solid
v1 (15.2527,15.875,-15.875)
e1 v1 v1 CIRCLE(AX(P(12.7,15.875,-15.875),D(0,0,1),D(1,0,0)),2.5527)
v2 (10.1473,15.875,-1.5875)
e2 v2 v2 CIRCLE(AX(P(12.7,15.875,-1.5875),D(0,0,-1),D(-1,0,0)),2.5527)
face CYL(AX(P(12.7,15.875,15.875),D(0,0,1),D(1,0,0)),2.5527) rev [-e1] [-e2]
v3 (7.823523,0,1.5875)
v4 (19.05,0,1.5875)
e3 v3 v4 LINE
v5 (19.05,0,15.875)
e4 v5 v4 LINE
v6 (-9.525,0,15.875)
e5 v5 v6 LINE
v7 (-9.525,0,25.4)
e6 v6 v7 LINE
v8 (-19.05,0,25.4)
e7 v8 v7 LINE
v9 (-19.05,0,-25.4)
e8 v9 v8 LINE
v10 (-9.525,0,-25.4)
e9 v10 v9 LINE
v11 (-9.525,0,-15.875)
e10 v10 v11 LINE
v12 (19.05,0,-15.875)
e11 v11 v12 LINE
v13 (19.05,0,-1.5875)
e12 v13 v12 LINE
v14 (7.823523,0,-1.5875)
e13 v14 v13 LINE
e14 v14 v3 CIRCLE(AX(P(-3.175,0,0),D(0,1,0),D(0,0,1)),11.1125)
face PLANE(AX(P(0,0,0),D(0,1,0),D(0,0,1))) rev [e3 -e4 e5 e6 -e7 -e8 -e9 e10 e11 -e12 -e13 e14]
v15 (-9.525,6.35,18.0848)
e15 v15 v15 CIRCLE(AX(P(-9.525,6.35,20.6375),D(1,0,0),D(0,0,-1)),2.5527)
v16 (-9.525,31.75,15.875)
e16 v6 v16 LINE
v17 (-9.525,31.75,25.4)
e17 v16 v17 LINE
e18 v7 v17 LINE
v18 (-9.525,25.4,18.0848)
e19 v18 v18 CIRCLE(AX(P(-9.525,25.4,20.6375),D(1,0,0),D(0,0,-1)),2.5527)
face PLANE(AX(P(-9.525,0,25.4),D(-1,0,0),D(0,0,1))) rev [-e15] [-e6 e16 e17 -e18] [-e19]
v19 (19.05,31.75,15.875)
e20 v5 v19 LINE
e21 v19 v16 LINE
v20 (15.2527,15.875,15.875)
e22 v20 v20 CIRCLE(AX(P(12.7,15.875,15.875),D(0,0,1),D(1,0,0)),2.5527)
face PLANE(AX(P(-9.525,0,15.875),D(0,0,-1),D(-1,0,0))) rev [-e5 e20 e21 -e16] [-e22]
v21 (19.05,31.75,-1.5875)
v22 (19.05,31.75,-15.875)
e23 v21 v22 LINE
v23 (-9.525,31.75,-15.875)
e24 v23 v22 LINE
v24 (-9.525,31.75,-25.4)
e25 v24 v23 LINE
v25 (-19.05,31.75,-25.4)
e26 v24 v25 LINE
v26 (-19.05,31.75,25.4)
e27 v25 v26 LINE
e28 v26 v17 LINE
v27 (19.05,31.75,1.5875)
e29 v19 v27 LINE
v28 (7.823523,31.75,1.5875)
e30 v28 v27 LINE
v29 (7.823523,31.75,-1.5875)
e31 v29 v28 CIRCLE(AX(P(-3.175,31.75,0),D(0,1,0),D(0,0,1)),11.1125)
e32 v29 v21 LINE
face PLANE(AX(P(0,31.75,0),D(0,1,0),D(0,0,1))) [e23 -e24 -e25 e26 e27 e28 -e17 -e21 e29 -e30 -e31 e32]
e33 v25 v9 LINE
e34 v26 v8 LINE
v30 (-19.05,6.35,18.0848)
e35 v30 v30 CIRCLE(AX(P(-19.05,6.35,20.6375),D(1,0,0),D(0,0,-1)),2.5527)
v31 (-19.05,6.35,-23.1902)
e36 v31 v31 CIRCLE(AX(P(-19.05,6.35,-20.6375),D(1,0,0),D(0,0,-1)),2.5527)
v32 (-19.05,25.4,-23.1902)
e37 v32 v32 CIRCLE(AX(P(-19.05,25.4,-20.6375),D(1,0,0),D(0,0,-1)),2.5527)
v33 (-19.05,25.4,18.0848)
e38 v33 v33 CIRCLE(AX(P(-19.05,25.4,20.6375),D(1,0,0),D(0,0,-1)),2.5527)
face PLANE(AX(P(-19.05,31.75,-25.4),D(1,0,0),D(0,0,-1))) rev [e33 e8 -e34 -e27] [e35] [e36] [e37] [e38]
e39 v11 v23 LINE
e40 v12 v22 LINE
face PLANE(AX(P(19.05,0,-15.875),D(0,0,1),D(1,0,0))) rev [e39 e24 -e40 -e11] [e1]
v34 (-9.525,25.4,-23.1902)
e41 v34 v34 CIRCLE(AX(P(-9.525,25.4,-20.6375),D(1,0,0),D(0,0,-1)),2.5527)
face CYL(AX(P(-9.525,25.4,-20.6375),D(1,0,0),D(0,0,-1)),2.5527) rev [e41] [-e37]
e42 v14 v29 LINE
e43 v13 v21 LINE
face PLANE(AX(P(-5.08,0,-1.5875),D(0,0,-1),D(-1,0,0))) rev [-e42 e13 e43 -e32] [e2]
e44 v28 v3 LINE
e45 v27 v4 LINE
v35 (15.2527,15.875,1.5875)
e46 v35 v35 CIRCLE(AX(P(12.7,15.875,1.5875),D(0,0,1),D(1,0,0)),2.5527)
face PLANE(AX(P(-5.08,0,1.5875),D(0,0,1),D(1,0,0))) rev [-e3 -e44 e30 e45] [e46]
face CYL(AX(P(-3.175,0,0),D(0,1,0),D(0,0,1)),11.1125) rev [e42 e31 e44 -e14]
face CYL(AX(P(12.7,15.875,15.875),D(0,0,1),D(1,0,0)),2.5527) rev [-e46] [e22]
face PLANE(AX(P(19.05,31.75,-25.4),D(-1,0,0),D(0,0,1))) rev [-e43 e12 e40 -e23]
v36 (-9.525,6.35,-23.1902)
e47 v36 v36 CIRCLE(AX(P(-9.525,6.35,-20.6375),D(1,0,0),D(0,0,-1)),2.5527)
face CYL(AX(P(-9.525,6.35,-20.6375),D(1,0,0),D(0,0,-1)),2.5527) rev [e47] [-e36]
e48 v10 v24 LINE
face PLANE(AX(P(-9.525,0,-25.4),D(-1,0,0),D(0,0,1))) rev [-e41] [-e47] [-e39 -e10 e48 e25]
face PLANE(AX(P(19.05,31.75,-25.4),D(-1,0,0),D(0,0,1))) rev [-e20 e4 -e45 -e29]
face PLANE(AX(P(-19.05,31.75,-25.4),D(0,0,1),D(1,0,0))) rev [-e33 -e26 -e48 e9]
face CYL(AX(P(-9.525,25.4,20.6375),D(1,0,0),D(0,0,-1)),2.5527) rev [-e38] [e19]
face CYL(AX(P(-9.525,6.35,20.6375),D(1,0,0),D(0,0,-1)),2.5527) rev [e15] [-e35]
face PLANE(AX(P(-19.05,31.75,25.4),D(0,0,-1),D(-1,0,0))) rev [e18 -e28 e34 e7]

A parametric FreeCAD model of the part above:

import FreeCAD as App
import Part
import Sketcher
from FreeCAD import Vector
Q = App.Units.Quantity

doc = App.newDocument("Part")
body = doc.addObject("PartDesign::Body", "Body")

sketch1 = body.newObject("Sketcher::SketchObject", "Sketch")
sketch1.AttachmentSupport = (doc.getObject("XZ_Plane"), [""])
sketch1.MapMode = "FlatFace"
sketch1.addGeometry(Part.LineSegment(Vector(-19, -25, 0), Vector(-19, 25, 0)), False)
sketch1.addGeometry(Part.LineSegment(Vector(-19, 25, 0), Vector(19, 25, 0)), False)
sketch1.addGeometry(Part.LineSegment(Vector(19, 25, 0), Vector(19, -25, 0)), False)
sketch1.addGeometry(Part.LineSegment(Vector(19, -25, 0), Vector(-19, -25, 0)), False)
sketch1.addConstraint(Sketcher.Constraint("Coincident", 0, 2, 1, 1))
sketch1.addConstraint(Sketcher.Constraint("Coincident", 1, 2, 2, 1))
sketch1.addConstraint(Sketcher.Constraint("Coincident", 2, 2, 3, 1))
sketch1.addConstraint(Sketcher.Constraint("Coincident", 3, 2, 0, 1))
sketch1.addConstraint(Sketcher.Constraint("Vertical", 0))
sketch1.addConstraint(Sketcher.Constraint("Horizontal", 1))
sketch1.addConstraint(Sketcher.Constraint("Vertical", 2))
sketch1.addConstraint(Sketcher.Constraint("Horizontal", 3))
sketch1.addConstraint(Sketcher.Constraint("Symmetric", 0, 2, 2, 2, -1, 1))
sketch1.addConstraint(Sketcher.Constraint("DistanceY", 0, 1, 0, 2, Q("2 in")))
sketch1.addConstraint(Sketcher.Constraint("DistanceX", 1, 1, 1, 2, Q("1.5 in")))
pad1 = body.newObject("PartDesign::Pad", "Pad")
pad1.Profile = sketch1
pad1.Length = Q("1.25 in")
pad1.Reversed = True

sketch2 = body.newObject("Sketcher::SketchObject", "Sketch001")
sketch2.AttachmentSupport = (doc.getObject("XZ_Plane"), [""])
sketch2.MapMode = "FlatFace"
sketch2.AttachmentOffset = App.Placement(Vector(0, 0, -1.25 * 25.4), App.Rotation())
sketch2.addGeometry(Part.Circle(Vector(-3, 0, 0), Vector(0, 0, 1), 11), False)
sketch2.addConstraint(Sketcher.Constraint("PointOnObject", 0, 3, -1))
sketch2.addConstraint(Sketcher.Constraint("Diameter", 0, Q("0.875 in")))
sketch2.addConstraint(Sketcher.Constraint("DistanceX", 0, 3, -1, 1, Q("0.125 in")))
pocket1 = body.newObject("PartDesign::Pocket", "Pocket")
pocket1.Profile = sketch2
pocket1.Type = "ThroughAll"
pocket1.Reversed = True

sketch3 = body.newObject("Sketcher::SketchObject", "Sketch002")
sketch3.AttachmentSupport = (doc.getObject("XZ_Plane"), [""])
sketch3.MapMode = "FlatFace"
sketch3.AttachmentOffset = App.Placement(Vector(0, 0, -1.25 * 25.4), App.Rotation())
sketch3.addGeometry(Part.LineSegment(Vector(-10, -25, 0), Vector(-10, -16, 0)), False)
sketch3.addGeometry(Part.LineSegment(Vector(-10, -16, 0), Vector(19, -16, 0)), False)
sketch3.addGeometry(Part.LineSegment(Vector(19, -16, 0), Vector(19, -25, 0)), False)
sketch3.addGeometry(Part.LineSegment(Vector(19, -25, 0), Vector(-10, -25, 0)), False)
sketch3.addGeometry(Part.LineSegment(Vector(-10, 16, 0), Vector(-10, 25, 0)), False)
sketch3.addGeometry(Part.LineSegment(Vector(-10, 25, 0), Vector(19, 25, 0)), False)
sketch3.addGeometry(Part.LineSegment(Vector(19, 25, 0), Vector(19, 16, 0)), False)
sketch3.addGeometry(Part.LineSegment(Vector(19, 16, 0), Vector(-10, 16, 0)), False)
sketch3.addConstraint(Sketcher.Constraint("Coincident", 0, 2, 1, 1))
sketch3.addConstraint(Sketcher.Constraint("Coincident", 1, 2, 2, 1))
sketch3.addConstraint(Sketcher.Constraint("Coincident", 2, 2, 3, 1))
sketch3.addConstraint(Sketcher.Constraint("Coincident", 3, 2, 0, 1))
sketch3.addConstraint(Sketcher.Constraint("Coincident", 4, 2, 5, 1))
sketch3.addConstraint(Sketcher.Constraint("Coincident", 5, 2, 6, 1))
sketch3.addConstraint(Sketcher.Constraint("Coincident", 6, 2, 7, 1))
sketch3.addConstraint(Sketcher.Constraint("Coincident", 7, 2, 4, 1))
sketch3.addConstraint(Sketcher.Constraint("Vertical", 0))
sketch3.addConstraint(Sketcher.Constraint("Horizontal", 1))
sketch3.addConstraint(Sketcher.Constraint("Vertical", 2))
sketch3.addConstraint(Sketcher.Constraint("Horizontal", 3))
sketch3.addConstraint(Sketcher.Constraint("Vertical", 4))
sketch3.addConstraint(Sketcher.Constraint("Horizontal", 5))
sketch3.addConstraint(Sketcher.Constraint("Vertical", 6))
sketch3.addConstraint(Sketcher.Constraint("Horizontal", 7))
sketch3.addConstraint(Sketcher.Constraint("Symmetric", 3, 2, 4, 2, -1))
sketch3.addConstraint(Sketcher.Constraint("Symmetric", 1, 2, 6, 2, -1))
sketch3.addConstraint(Sketcher.Constraint("DistanceY", 2, 2, -1, 1, Q("1 in")))
sketch3.addConstraint(Sketcher.Constraint("DistanceX", 1, 1, 1, 2, Q("1.125 in")))
sketch3.addConstraint(Sketcher.Constraint("DistanceY", 0, 1, 0, 2, Q("0.375 in")))
sketch3.addConstraint(Sketcher.Constraint("DistanceX", -1, 1, 1, 2, Q("0.75 in")))
pocket2 = body.newObject("PartDesign::Pocket", "Pocket001")
pocket2.Profile = sketch3
pocket2.Type = "ThroughAll"
pocket2.Reversed = True

sketch4 = body.newObject("Sketcher::SketchObject", "Sketch003")
sketch4.AttachmentSupport = (doc.getObject("YZ_Plane"), [""])
sketch4.MapMode = "FlatFace"
sketch4.AttachmentOffset = App.Placement(Vector(0, 0, -0.375 * 25.4), App.Rotation())
sketch4.addGeometry(Part.Circle(Vector(25.4, 20.6, 0), Vector(0, 0, 1), 2.6), False)
sketch4.addGeometry(Part.Circle(Vector(6.3, -20.6, 0), Vector(0, 0, 1), 2.6), False)
sketch4.addGeometry(Part.Circle(Vector(6.3, 20.6, 0), Vector(0, 0, 1), 2.6), False)
sketch4.addGeometry(Part.Circle(Vector(25.4, -20.6, 0), Vector(0, 0, 1), 2.6), False)
sketch4.addConstraint(Sketcher.Constraint("Equal", 0, 1))
sketch4.addConstraint(Sketcher.Constraint("Equal", 1, 2))
sketch4.addConstraint(Sketcher.Constraint("Equal", 2, 3))
sketch4.addConstraint(Sketcher.Constraint("Symmetric", 1, 3, 2, 3, -1))
sketch4.addConstraint(Sketcher.Constraint("Symmetric", 0, 3, 3, 3, -1))
sketch4.addConstraint(Sketcher.Constraint("Horizontal", 0, 3, 2, 3))
sketch4.addConstraint(Sketcher.Constraint("Diameter", 0, Q("0.201 in")))
sketch4.addConstraint(Sketcher.Constraint("DistanceX", -1, 1, 0, 3, Q("1 in")))
sketch4.addConstraint(Sketcher.Constraint("DistanceX", -1, 1, 1, 3, Q("0.25 in")))
sketch4.addConstraint(Sketcher.Constraint("DistanceY", -1, 1, 0, 3, Q("0.8125 in")))
doc.recompute()
hole = body.newObject("PartDesign::Hole", "Hole")
hole.Profile = sketch4
hole.ThreadType = "None"
hole.Diameter = Q("0.201 in")
hole.DepthType = "Dimension"
hole.Depth = Q("0.38 in")
hole.DrillPoint = "Angled"
hole.DrillPointAngle = 118

sketch5 = body.newObject("Sketcher::SketchObject", "Sketch004")
sketch5.AttachmentSupport = (doc.getObject("YZ_Plane"), [""])
sketch5.MapMode = "FlatFace"
sketch5.AttachmentOffset = App.Placement(Vector(0, 0, 0.75 * 25.4), App.Rotation())
sketch5.addGeometry(Part.LineSegment(Vector(31.8, 1.6, 0), Vector(0, 1.6, 0)), False)
sketch5.addGeometry(Part.LineSegment(Vector(0, 1.6, 0), Vector(0, -1.6, 0)), False)
sketch5.addGeometry(Part.LineSegment(Vector(0, -1.6, 0), Vector(31.8, -1.6, 0)), False)
sketch5.addGeometry(Part.LineSegment(Vector(31.8, -1.6, 0), Vector(31.8, 1.6, 0)), False)
sketch5.addConstraint(Sketcher.Constraint("Coincident", 0, 2, 1, 1))
sketch5.addConstraint(Sketcher.Constraint("Coincident", 1, 2, 2, 1))
sketch5.addConstraint(Sketcher.Constraint("Coincident", 2, 2, 3, 1))
sketch5.addConstraint(Sketcher.Constraint("Coincident", 3, 2, 0, 1))
sketch5.addConstraint(Sketcher.Constraint("Horizontal", 0))
sketch5.addConstraint(Sketcher.Constraint("Vertical", 1))
sketch5.addConstraint(Sketcher.Constraint("Horizontal", 2))
sketch5.addConstraint(Sketcher.Constraint("Vertical", 3))
sketch5.addConstraint(Sketcher.Constraint("Symmetric", 0, 2, 1, 2, -1, 1))
sketch5.addConstraint(Sketcher.Constraint("DistanceX", 0, 2, 0, 1, Q("1.25 in")))
sketch5.addConstraint(Sketcher.Constraint("DistanceY", 1, 2, 1, 1, Q("0.125 in")))
pocket3 = body.newObject("PartDesign::Pocket", "Pocket002")
pocket3.Profile = sketch5
pocket3.Length = Q("0.95 in")

sketch6 = body.newObject("Sketcher::SketchObject", "Sketch005")
sketch6.AttachmentSupport = (doc.getObject("XY_Plane"), [""])
sketch6.MapMode = "FlatFace"
sketch6.AttachmentOffset = App.Placement(Vector(0, 0, 0.625 * 25.4), App.Rotation())
sketch6.addGeometry(Part.Circle(Vector(12.7, 15.9, 0), Vector(0, 0, 1), 2.6), False)
sketch6.addConstraint(Sketcher.Constraint("Diameter", 0, Q("0.201 in")))
sketch6.addConstraint(Sketcher.Constraint("DistanceX", -1, 1, 0, 3, Q("0.5 in")))
sketch6.addConstraint(Sketcher.Constraint("DistanceY", -1, 1, 0, 3, Q("0.625 in")))
doc.recompute()
hole2 = body.newObject("PartDesign::Hole", "Hole001")
hole2.Profile = sketch6
hole2.ThreadType = "None"
hole2.Diameter = Q("0.201 in")
hole2.DepthType = "ThroughAll"

doc.recompute()
